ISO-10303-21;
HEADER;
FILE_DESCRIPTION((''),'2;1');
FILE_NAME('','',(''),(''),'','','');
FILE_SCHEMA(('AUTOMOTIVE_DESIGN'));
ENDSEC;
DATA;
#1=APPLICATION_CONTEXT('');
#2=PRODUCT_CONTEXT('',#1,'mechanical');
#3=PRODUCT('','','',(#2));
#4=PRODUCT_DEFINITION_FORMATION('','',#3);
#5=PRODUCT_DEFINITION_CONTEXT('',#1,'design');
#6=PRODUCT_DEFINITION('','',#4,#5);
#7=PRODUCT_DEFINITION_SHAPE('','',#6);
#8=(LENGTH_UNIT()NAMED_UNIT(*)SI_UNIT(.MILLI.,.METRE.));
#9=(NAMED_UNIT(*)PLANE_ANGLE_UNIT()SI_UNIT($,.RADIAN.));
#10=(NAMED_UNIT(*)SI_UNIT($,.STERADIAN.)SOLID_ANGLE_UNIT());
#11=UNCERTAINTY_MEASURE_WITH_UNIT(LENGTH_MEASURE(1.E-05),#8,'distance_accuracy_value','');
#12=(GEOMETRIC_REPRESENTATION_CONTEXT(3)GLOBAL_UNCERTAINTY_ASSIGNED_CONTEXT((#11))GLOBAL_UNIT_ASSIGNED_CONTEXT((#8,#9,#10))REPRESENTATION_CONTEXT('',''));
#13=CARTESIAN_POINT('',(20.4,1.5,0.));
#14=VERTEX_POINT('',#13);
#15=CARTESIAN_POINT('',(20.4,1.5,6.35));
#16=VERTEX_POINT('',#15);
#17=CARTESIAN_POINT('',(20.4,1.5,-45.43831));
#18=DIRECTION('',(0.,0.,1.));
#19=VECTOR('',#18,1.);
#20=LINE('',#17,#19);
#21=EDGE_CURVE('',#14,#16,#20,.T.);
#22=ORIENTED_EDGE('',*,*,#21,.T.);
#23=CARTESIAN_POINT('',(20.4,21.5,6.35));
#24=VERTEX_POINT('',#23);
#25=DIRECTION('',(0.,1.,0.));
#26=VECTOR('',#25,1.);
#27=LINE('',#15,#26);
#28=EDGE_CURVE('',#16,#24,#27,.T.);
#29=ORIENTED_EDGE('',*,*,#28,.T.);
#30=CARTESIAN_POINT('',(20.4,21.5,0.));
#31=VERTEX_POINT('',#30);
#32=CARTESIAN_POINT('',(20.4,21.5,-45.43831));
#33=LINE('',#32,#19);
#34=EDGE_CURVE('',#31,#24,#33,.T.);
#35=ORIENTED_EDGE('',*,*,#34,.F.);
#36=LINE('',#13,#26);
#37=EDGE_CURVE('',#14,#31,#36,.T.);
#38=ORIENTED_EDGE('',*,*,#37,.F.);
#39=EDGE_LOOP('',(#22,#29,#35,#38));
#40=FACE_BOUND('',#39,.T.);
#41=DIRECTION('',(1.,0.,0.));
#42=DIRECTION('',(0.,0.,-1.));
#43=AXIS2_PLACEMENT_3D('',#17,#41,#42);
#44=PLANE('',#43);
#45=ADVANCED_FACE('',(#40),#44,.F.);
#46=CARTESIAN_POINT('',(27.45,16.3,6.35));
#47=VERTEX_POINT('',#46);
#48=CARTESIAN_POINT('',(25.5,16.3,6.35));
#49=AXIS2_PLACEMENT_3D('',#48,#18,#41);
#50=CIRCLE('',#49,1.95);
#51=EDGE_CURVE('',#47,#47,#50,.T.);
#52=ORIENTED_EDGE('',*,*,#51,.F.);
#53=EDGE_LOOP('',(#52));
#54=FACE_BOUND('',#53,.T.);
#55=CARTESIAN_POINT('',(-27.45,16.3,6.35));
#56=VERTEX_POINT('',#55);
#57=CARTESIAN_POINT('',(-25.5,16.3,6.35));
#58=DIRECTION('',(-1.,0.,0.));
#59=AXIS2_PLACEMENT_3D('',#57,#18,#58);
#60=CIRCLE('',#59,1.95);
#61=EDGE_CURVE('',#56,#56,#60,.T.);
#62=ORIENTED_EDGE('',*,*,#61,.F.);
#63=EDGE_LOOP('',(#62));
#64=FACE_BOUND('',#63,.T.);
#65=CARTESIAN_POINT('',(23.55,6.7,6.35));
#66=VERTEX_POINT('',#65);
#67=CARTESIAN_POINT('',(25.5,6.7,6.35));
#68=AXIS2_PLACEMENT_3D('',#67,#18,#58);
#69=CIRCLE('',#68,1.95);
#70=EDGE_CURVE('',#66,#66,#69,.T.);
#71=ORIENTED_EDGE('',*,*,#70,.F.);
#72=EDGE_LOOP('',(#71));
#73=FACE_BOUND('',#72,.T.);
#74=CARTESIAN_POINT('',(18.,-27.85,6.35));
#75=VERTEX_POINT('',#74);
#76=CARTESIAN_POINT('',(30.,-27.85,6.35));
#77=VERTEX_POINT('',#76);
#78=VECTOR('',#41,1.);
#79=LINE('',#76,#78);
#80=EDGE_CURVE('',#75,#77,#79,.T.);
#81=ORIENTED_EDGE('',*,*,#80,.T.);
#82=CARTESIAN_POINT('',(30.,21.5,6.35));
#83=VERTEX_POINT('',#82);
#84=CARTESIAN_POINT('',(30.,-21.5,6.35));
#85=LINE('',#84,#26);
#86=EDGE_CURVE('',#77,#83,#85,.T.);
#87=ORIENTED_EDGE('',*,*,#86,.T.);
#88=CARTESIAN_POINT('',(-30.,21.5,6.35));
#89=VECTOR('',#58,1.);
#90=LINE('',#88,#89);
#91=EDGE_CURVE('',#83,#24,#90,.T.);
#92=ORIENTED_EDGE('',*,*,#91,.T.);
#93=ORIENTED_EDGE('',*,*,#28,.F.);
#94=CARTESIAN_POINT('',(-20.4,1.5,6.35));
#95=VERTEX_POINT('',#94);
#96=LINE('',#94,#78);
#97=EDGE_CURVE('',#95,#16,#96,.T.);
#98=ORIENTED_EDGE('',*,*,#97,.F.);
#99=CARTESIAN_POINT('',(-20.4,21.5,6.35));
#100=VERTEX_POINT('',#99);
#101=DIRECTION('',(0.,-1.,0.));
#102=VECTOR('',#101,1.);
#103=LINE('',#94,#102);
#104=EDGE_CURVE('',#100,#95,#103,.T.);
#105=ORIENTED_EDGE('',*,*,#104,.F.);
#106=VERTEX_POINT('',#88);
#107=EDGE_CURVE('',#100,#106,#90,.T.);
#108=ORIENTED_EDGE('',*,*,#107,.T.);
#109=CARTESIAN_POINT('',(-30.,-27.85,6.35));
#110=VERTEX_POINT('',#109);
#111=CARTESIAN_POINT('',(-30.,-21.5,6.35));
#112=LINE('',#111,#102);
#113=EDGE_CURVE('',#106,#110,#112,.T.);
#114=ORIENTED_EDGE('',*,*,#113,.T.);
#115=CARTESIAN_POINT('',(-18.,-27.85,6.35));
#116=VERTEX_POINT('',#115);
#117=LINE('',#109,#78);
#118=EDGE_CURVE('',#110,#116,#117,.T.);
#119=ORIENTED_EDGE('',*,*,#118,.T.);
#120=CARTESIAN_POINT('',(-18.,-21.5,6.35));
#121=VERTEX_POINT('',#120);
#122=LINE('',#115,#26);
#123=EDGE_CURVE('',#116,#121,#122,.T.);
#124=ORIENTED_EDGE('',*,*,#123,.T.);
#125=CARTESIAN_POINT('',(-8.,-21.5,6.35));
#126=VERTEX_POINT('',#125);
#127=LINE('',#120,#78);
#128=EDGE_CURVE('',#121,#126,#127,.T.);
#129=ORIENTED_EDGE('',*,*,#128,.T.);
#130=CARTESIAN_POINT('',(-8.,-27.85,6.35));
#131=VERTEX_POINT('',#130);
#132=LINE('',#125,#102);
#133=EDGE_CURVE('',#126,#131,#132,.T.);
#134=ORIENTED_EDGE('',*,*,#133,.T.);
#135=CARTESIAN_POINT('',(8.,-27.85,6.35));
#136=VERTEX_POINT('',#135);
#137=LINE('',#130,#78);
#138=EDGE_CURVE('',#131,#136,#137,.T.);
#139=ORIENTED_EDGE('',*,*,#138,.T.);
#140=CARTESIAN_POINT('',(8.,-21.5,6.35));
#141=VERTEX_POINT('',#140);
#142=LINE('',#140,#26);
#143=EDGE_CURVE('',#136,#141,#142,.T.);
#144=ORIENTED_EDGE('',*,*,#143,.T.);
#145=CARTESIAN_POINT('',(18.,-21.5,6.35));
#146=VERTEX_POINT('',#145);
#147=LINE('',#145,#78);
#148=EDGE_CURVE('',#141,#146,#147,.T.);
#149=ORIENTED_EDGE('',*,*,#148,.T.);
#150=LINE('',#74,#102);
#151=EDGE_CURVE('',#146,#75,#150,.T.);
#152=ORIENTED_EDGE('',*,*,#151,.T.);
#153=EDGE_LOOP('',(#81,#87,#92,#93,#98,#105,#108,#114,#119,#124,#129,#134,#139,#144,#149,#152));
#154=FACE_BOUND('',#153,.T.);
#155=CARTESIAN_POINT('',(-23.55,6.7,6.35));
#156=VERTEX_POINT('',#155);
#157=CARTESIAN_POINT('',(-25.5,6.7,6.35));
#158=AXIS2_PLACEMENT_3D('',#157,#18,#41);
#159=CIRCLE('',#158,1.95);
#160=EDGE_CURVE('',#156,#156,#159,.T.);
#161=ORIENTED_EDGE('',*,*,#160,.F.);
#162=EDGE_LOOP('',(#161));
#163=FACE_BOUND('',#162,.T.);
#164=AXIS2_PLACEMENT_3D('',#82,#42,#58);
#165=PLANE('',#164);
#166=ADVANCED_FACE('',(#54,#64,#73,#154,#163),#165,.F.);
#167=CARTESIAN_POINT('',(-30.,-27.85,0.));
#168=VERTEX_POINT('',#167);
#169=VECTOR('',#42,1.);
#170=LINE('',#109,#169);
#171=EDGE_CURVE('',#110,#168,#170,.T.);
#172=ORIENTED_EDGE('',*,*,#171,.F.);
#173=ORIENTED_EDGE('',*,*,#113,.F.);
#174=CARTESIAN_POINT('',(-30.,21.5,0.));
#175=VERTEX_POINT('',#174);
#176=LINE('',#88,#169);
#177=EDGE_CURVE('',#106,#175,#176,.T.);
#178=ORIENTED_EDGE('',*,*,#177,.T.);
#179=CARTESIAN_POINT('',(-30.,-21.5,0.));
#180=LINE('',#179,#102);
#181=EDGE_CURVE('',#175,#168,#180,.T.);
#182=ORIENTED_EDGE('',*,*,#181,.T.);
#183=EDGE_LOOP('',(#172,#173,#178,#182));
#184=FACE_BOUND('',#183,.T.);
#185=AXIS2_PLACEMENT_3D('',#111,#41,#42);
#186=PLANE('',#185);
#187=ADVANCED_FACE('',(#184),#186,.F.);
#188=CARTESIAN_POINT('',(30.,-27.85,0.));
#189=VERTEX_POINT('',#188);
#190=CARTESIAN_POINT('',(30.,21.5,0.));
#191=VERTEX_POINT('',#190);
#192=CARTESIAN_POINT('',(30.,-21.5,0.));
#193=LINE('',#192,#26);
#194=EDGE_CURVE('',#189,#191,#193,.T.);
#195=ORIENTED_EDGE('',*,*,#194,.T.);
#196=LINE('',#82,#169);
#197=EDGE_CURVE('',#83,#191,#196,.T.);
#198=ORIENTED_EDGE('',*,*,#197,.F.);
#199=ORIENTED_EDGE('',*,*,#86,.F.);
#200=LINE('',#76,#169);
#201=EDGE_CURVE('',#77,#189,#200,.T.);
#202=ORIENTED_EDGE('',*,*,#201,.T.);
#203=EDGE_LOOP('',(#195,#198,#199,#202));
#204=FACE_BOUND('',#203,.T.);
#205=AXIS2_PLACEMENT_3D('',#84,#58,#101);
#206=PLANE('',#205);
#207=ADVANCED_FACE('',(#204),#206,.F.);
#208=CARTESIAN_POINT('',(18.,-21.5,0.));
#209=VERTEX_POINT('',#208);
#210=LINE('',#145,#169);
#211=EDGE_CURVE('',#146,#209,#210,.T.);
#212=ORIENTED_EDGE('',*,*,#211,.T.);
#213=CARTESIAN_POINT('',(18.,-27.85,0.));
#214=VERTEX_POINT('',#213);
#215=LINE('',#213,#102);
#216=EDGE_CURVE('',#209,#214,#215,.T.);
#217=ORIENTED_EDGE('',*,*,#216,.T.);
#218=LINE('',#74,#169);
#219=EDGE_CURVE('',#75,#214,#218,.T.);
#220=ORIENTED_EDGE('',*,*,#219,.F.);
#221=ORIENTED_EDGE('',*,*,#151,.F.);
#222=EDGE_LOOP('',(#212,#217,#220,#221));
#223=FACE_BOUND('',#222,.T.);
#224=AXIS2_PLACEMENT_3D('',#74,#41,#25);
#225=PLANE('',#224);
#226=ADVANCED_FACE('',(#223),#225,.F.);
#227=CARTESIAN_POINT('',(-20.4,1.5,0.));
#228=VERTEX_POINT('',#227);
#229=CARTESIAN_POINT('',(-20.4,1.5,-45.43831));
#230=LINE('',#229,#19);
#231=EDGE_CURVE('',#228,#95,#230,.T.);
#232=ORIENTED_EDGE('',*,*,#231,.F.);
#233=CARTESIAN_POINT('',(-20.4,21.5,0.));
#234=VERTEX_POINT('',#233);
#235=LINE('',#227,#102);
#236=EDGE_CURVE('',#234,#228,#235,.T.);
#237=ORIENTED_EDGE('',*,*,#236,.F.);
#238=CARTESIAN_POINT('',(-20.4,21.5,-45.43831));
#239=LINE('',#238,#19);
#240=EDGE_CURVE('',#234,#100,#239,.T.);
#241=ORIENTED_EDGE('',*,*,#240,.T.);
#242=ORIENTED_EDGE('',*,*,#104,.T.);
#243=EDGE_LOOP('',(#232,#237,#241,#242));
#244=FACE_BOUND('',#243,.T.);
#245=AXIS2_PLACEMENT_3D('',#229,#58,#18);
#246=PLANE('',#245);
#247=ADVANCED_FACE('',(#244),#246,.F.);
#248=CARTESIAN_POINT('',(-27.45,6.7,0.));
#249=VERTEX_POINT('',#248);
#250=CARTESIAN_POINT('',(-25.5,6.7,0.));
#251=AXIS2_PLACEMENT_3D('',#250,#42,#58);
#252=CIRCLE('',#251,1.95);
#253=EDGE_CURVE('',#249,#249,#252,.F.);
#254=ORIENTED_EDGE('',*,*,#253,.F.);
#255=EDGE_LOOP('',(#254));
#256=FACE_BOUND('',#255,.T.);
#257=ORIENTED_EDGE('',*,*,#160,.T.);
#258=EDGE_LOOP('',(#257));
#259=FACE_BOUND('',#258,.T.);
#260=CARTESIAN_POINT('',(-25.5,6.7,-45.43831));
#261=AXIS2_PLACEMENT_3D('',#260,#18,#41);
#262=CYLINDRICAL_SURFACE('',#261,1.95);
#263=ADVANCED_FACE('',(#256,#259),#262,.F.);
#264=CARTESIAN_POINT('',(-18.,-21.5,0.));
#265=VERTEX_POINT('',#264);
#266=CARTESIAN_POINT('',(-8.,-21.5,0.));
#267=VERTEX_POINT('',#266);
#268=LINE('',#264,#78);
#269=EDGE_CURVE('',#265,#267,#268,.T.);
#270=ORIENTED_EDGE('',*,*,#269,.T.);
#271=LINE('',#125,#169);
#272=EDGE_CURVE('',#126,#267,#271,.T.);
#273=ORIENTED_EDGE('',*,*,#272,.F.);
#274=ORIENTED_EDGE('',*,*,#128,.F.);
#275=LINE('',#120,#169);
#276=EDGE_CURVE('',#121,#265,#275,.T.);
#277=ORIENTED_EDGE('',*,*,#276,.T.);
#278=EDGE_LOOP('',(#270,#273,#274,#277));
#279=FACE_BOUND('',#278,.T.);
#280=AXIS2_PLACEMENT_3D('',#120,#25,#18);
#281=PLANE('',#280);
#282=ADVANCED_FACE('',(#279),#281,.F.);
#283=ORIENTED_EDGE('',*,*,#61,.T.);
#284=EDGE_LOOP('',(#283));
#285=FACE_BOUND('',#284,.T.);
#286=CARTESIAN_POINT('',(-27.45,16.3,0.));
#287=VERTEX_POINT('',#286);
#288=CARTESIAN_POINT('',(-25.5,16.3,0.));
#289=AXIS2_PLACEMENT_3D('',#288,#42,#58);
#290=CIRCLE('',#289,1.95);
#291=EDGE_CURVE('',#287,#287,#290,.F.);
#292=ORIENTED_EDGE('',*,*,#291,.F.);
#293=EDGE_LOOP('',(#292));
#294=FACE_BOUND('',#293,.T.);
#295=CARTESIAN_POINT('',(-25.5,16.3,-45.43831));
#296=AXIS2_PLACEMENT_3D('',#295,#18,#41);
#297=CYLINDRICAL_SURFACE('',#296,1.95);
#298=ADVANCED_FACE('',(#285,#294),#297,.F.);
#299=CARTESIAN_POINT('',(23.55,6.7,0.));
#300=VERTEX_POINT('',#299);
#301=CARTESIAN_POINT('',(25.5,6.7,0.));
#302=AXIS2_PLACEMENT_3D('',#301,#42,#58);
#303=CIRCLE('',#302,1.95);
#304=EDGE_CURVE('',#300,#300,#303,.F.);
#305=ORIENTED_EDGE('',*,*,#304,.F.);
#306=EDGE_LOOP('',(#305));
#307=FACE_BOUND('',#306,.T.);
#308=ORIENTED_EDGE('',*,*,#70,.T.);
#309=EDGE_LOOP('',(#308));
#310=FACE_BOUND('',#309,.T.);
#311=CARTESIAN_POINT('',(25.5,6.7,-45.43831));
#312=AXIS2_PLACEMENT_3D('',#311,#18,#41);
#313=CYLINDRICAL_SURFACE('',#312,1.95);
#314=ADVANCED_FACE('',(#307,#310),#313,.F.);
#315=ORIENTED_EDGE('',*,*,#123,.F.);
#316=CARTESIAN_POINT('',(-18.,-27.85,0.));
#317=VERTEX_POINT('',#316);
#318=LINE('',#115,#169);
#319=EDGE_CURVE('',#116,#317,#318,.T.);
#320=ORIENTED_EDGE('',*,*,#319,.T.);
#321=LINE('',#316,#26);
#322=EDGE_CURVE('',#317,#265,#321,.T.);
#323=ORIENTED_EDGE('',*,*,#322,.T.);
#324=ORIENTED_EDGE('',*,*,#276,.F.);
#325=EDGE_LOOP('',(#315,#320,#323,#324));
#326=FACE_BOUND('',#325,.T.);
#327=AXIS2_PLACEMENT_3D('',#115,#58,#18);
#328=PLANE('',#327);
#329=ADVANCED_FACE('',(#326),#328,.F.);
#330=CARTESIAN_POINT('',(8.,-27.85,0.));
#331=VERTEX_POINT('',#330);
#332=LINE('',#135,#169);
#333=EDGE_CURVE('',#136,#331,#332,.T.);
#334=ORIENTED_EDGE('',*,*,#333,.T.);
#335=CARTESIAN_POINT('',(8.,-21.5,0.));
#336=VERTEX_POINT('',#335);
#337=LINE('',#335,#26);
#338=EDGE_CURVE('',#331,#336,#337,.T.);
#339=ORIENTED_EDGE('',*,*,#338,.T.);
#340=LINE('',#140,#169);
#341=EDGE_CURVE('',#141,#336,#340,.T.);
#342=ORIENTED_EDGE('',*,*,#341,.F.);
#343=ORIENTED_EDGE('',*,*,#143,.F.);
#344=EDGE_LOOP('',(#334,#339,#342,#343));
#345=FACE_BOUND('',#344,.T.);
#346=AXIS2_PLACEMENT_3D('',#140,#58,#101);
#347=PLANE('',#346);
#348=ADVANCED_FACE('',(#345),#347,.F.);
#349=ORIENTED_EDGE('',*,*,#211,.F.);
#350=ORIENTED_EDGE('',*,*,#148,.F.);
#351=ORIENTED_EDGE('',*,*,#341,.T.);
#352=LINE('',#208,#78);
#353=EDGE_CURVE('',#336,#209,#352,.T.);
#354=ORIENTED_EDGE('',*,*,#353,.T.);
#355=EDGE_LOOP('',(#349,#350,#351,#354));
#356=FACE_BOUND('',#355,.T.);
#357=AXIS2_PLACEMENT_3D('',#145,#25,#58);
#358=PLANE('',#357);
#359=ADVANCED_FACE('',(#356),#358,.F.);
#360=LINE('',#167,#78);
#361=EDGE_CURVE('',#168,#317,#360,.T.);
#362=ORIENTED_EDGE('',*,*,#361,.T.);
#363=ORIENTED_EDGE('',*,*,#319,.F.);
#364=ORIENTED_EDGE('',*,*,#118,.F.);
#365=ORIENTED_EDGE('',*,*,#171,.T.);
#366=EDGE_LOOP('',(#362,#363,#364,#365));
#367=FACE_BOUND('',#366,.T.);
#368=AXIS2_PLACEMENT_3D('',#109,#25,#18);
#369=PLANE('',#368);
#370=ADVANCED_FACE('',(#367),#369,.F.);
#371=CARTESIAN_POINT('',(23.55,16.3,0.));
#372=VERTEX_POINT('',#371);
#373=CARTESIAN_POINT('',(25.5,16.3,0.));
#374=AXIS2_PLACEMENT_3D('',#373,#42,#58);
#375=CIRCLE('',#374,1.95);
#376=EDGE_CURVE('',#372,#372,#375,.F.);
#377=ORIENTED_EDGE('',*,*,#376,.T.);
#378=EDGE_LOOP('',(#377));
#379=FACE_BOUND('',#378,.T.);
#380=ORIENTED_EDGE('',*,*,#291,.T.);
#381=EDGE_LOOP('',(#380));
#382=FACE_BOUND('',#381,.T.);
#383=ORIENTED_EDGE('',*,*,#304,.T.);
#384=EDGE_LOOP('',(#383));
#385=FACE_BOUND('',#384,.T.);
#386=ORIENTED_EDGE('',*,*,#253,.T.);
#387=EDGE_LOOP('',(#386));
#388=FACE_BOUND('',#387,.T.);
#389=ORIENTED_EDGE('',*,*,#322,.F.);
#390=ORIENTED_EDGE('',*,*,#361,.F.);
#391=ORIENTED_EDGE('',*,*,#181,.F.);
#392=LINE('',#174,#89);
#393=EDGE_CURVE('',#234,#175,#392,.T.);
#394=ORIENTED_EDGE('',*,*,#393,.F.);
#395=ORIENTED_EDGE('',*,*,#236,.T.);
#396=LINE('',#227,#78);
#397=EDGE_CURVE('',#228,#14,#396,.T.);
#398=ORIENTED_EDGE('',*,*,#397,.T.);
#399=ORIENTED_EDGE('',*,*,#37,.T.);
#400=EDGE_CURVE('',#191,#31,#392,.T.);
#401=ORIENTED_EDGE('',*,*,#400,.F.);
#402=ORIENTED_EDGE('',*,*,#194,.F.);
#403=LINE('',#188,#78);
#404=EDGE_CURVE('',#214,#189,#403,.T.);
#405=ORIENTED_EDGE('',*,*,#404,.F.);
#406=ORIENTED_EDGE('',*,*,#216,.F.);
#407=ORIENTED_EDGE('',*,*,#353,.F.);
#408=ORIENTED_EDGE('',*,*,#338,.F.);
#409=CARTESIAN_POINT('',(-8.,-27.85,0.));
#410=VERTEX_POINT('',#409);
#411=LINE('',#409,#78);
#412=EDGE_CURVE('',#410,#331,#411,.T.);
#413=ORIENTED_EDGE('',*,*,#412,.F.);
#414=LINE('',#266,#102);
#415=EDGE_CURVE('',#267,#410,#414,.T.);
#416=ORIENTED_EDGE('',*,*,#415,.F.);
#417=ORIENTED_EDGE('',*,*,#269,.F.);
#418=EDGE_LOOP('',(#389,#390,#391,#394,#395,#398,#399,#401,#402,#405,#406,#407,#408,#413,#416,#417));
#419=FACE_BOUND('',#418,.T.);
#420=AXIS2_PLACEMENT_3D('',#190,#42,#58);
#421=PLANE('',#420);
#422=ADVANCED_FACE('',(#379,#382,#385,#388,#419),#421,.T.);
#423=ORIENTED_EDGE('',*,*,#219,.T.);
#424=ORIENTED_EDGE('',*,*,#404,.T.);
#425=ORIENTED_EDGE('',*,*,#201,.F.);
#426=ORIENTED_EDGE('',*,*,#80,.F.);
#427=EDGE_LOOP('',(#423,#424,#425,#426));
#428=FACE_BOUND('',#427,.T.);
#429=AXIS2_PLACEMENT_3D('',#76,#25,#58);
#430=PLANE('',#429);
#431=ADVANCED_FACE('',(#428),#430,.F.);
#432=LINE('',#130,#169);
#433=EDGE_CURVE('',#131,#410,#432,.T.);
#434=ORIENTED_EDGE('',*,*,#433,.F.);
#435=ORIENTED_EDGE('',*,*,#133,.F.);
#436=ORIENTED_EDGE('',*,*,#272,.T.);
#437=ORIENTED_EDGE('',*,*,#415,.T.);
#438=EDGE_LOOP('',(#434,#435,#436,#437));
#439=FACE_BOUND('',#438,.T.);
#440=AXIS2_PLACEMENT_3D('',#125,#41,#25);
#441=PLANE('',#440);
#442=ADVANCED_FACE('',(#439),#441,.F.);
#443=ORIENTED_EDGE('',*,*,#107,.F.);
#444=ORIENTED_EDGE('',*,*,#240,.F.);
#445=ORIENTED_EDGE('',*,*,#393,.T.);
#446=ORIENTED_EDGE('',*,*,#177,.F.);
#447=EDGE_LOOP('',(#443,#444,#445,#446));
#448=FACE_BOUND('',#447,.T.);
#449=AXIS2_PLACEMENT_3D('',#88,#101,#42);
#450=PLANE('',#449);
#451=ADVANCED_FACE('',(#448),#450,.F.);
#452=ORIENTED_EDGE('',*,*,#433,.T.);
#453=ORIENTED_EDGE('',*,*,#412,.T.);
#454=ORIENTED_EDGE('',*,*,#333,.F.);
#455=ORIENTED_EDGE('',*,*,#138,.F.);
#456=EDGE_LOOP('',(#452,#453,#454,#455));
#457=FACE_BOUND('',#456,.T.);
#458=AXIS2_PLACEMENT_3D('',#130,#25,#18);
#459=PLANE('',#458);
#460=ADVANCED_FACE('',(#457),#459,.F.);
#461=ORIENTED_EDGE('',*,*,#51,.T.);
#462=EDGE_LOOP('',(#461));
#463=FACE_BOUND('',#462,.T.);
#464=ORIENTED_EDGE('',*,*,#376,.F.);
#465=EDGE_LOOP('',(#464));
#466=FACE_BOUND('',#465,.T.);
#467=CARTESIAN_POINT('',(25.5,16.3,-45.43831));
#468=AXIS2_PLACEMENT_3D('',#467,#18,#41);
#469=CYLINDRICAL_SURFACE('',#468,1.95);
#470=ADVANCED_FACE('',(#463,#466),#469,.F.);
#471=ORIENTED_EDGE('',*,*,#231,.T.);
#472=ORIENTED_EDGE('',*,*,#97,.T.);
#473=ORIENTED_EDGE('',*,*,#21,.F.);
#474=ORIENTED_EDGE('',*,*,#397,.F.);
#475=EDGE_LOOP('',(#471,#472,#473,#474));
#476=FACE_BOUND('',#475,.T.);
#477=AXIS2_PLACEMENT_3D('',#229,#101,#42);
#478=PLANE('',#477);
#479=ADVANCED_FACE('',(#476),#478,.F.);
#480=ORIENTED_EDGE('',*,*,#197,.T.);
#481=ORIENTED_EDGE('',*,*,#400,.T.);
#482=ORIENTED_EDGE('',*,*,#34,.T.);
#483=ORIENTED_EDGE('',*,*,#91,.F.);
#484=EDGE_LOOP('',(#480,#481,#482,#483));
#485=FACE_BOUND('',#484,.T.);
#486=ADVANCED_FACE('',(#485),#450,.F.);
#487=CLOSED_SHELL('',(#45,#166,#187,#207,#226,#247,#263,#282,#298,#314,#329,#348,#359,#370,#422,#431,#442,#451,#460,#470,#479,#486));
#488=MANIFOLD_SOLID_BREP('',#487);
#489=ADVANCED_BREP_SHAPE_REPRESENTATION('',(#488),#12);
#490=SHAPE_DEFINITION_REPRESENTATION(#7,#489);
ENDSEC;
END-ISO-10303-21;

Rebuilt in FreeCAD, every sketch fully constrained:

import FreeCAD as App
import Part
import Sketcher

V = App.Vector
Q = App.Units.Quantity


def add_polygon(sketch, points):
    """Adds a closed chain of lines whose ends are joined by coincident constraints."""
    first, n = sketch.GeometryCount, len(points)
    for a, b in zip(points, points[1:] + points[:1]):
        sketch.addGeometry(Part.LineSegment(App.Vector(*a, 0), App.Vector(*b, 0)), False)
    for i in range(n):
        sketch.addConstraint(Sketcher.Constraint("Coincident", first + i, 2, first + (i + 1) % n, 1))

doc = App.newDocument("Part")
body = doc.addObject("PartDesign::Body", "Body")

# Sketch on XY plane
sketch1 = body.newObject("Sketcher::SketchObject", "Sketch")
sketch1.AttachmentSupport = (doc.getObject("XY_Plane"), [""])
sketch1.MapMode = "FlatFace"
add_polygon(sketch1, [(-30, 21.5), (-30, -27.85), (-18, -27.85), (-18, -21.5), (-8, -21.5), (-8, -27.85), (8, -27.85), (8, -21.5), (18, -21.5), (18, -27.85), (30, -27.85), (30, 21.5)])  # lines 0-11
sketch1.addConstraint([
    Sketcher.Constraint("Vertical", 0),
    Sketcher.Constraint("Horizontal", 1),
    Sketcher.Constraint("Vertical", 2),
    Sketcher.Constraint("Horizontal", 3),
    Sketcher.Constraint("Vertical", 4),
    Sketcher.Constraint("Horizontal", 5),
    Sketcher.Constraint("Vertical", 6),
    Sketcher.Constraint("Horizontal", 7),
    Sketcher.Constraint("Vertical", 8),
    Sketcher.Constraint("Horizontal", 9),
    Sketcher.Constraint("Vertical", 10),
    Sketcher.Constraint("Horizontal", 11),
    Sketcher.Constraint("Symmetric", 3, 2, 6, 2, -2),
    Sketcher.Constraint("Symmetric", 1, 2, 8, 2, -2),
    Sketcher.Constraint("Horizontal", 1, 2, 4, 2),
    Sketcher.Constraint("Equal", 1, 9),
    Sketcher.Constraint("DistanceX", 1, 1, 1, 2, Q("12 mm")),
    Sketcher.Constraint("DistanceX", 3, 1, 3, 2, Q("10 mm")),
    Sketcher.Constraint("DistanceX", 5, 1, 5, 2, Q("16 mm")),
    Sketcher.Constraint("DistanceY", 7, 2, 10, 2, Q("43 mm")),
    Sketcher.Constraint("DistanceY", 0, 2, 0, 1, Q("49.35 mm")),
    Sketcher.Constraint("DistanceY", 2, 2, -1, 1, Q("21.5 mm")),
])
pad1 = body.newObject("PartDesign::Pad", "Pad")
pad1.Profile = sketch1
pad1.Length = 6.35

# Sketch on XY plane
sketch2 = body.newObject("Sketcher::SketchObject", "Sketch001")
sketch2.AttachmentSupport = (doc.getObject("XY_Plane"), [""])
sketch2.MapMode = "FlatFace"
sketch2.AttachmentOffset = App.Placement(V(0, 0, 6.35), App.Rotation())
sketch2.addGeometry(Part.Circle(V(-25.5, 16.3, 0), V(0, 0, 1), 1.95), False)  # 0
sketch2.addGeometry(Part.Circle(V(-25.5, 6.7, 0), V(0, 0, 1), 1.95), False)  # 1
sketch2.addGeometry(Part.Circle(V(25.5, 6.7, 0), V(0, 0, 1), 1.95), False)  # 2
sketch2.addGeometry(Part.Circle(V(25.5, 16.3, 0), V(0, 0, 1), 1.95), False)  # 3
add_polygon(sketch2, [(-20.4, 21.5), (-20.4, 1.5), (20.4, 1.5), (20.4, 21.5)])  # lines 4-7
sketch2.addConstraint([
    Sketcher.Constraint("Vertical", 4),
    Sketcher.Constraint("Horizontal", 5),
    Sketcher.Constraint("Vertical", 6),
    Sketcher.Constraint("Horizontal", 7),
    Sketcher.Constraint("Equal", 0, 1),
    Sketcher.Constraint("Equal", 1, 2),
    Sketcher.Constraint("Equal", 2, 3),
    Sketcher.Constraint("Symmetric", 1, 3, 2, 3, -2),
    Sketcher.Constraint("Symmetric", 0, 3, 3, 3, -2),
    Sketcher.Constraint("Vertical", 0, 3, 1, 3),
    Sketcher.Constraint("Diameter", 0, Q("3.9 mm")),
    Sketcher.Constraint("DistanceY", 4, 2, 4, 1, Q("20 mm")),
    Sketcher.Constraint("DistanceX", 5, 1, 5, 2, Q("40.8 mm")),
    Sketcher.Constraint("DistanceX", 1, 3, 2, 3, Q("51 mm")),
    Sketcher.Constraint("DistanceY", -1, 1, 0, 3, Q("16.3 mm")),
    Sketcher.Constraint("DistanceY", -1, 1, 1, 3, Q("6.7 mm")),
    Sketcher.Constraint("DistanceX", 4, 2, -1, 1, Q("20.4 mm")),
    Sketcher.Constraint("DistanceY", -1, 1, 4, 2, Q("1.5 mm")),
])
pocket1 = body.newObject("PartDesign::Pocket", "Pocket")
pocket1.Profile = sketch2
pocket1.Length = 6.35

doc.recompute()
